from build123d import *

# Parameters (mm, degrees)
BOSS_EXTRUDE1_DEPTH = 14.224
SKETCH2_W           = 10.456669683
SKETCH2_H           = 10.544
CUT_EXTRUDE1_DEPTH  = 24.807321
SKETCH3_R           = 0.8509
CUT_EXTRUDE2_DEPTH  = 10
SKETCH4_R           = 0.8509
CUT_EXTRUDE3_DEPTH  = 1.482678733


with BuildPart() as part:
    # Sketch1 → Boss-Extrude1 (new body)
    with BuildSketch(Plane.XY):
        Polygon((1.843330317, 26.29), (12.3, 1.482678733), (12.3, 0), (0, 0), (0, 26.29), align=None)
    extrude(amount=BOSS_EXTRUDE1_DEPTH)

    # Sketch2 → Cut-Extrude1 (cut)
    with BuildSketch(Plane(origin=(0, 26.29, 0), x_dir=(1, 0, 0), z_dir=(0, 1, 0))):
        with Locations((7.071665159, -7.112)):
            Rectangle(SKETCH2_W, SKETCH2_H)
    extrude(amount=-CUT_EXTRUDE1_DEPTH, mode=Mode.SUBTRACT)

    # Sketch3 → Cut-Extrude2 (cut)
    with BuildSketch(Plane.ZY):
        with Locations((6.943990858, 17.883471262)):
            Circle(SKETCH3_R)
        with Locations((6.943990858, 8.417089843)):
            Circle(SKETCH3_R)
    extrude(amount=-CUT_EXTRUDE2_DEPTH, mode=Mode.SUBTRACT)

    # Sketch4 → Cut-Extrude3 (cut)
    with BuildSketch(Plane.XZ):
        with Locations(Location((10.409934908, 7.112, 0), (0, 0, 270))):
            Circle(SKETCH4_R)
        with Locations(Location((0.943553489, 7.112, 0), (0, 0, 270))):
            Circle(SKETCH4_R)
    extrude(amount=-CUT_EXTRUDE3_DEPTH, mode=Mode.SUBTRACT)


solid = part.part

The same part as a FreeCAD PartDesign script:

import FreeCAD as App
import Part
import Sketcher
Q = App.Units.Quantity

doc = App.newDocument("Part")
params = doc.addObject("Spreadsheet::Sheet", "Params")
for row, (alias, value) in enumerate([
    ("sketch1_width", "12.3 mm"),
    ("sketch1_height", "26.29 mm"),
    ("pad1_length", "14.224 mm"),
    ("pocket1_length", "24.807321 mm"),
    ("pocket2_length", "10 mm"),
    ("pocket3_length", "1.482679 mm"),
], start=1):
    params.set(f"A{row}", alias)
    params.set(f"B{row}", "=" + value)
    params.setAlias(f"B{row}", alias)

body = doc.addObject("PartDesign::Body", "Body")

sketch1 = doc.addObject("Sketcher::SketchObject", "Sketch")
body.addObject(sketch1)
sketch1.AttachmentSupport = (doc.XY_Plane, [""])
sketch1.MapMode = "FlatFace"
sketch1.addGeometry([
    Part.LineSegment(App.Vector(12.3, 1.5, 0), App.Vector(1.8, 26.3, 0)),
    Part.LineSegment(App.Vector(1.8, 26.3, 0), App.Vector(0, 26.3, 0)),
    Part.LineSegment(App.Vector(0, 26.3, 0), App.Vector(0, 0, 0)),
    Part.LineSegment(App.Vector(0, 0, 0), App.Vector(12.3, 0, 0)),
    Part.LineSegment(App.Vector(12.3, 0, 0), App.Vector(12.3, 1.5, 0)),
], False)
sketch1.addConstraint([
    Sketcher.Constraint("Coincident", 0, 2, 1, 1),
    Sketcher.Constraint("Coincident", 1, 2, 2, 1),
    Sketcher.Constraint("Coincident", 2, 2, 3, 1),
    Sketcher.Constraint("Coincident", 3, 2, 4, 1),
    Sketcher.Constraint("Coincident", 4, 2, 0, 1),
    Sketcher.Constraint("Horizontal", 1),
    Sketcher.Constraint("Vertical", 2),
    Sketcher.Constraint("Horizontal", 3),
    Sketcher.Constraint("Vertical", 4),
    Sketcher.Constraint("Coincident", 2, 2, -1, 1),
    Sketcher.Constraint("DistanceX", 3, 1, 3, 2, Q("12.3 mm")),
    Sketcher.Constraint("DistanceY", 2, 2, 2, 1, Q("26.29 mm")),
    Sketcher.Constraint("DistanceX", 1, 2, 1, 1, Q("1.84333 mm")),
    Sketcher.Constraint("DistanceY", 4, 1, 4, 2, Q("1.482679 mm")),
])
sketch1.setExpression("Constraints[10]", "Params.sketch1_width")
sketch1.setExpression("Constraints[11]", "Params.sketch1_height")
pad1 = doc.addObject("PartDesign::Pad", "Pad")
body.addObject(pad1)
pad1.Profile = sketch1
pad1.setExpression("Length", "Params.pad1_length")

sketch2 = doc.addObject("Sketcher::SketchObject", "Sketch001")
body.addObject(sketch2)
sketch2.AttachmentSupport = (doc.XZ_Plane, [""])
sketch2.MapMode = "FlatFace"
sketch2.AttachmentOffset = App.Placement(App.Vector(0, 0, -26.29), App.Rotation())
sketch2.addGeometry([
    Part.LineSegment(App.Vector(2, 2, 0), App.Vector(2, 12, 0)),
    Part.LineSegment(App.Vector(2, 12, 0), App.Vector(12, 12, 0)),
    Part.LineSegment(App.Vector(12, 12, 0), App.Vector(12, 2, 0)),
    Part.LineSegment(App.Vector(12, 2, 0), App.Vector(2, 2, 0)),
], False)
sketch2.addConstraint([
    Sketcher.Constraint("Coincident", 0, 2, 1, 1),
    Sketcher.Constraint("Coincident", 1, 2, 2, 1),
    Sketcher.Constraint("Coincident", 2, 2, 3, 1),
    Sketcher.Constraint("Coincident", 3, 2, 0, 1),
    Sketcher.Constraint("Vertical", 0),
    Sketcher.Constraint("Horizontal", 1),
    Sketcher.Constraint("Vertical", 2),
    Sketcher.Constraint("Horizontal", 3),
    Sketcher.Constraint("DistanceX", -1, 1, 1, 2, Q("12.3 mm")),
    Sketcher.Constraint("DistanceY", 0, 1, 0, 2, Q("10.544 mm")),
    Sketcher.Constraint("DistanceY", -1, 1, 2, 2, Q("1.84 mm")),
    Sketcher.Constraint("DistanceX", 1, 1, 1, 2, Q("10.45667 mm")),
])
pocket1 = doc.addObject("PartDesign::Pocket", "Pocket")
body.addObject(pocket1)
pocket1.Profile = sketch2
pocket1.setExpression("Length", "Params.pocket1_length")
pocket1.Reversed = True

sketch3 = doc.addObject("Sketcher::SketchObject", "Sketch002")
body.addObject(sketch3)
sketch3.AttachmentSupport = (doc.YZ_Plane, [""])
sketch3.MapMode = "FlatFace"
sketch3.addGeometry([
    Part.Circle(App.Vector(17.9, 6.9, 0), App.Vector(0, 0, 1), 0.9),
    Part.Circle(App.Vector(8.4, 6.9, 0), App.Vector(0, 0, 1), 0.9),
], False)
sketch3.addConstraint([
    Sketcher.Constraint("Equal", 0, 1),
    Sketcher.Constraint("Horizontal", 0, 3, 1, 3),
    Sketcher.Constraint("Diameter", 0, Q("1.7018 mm")),
    Sketcher.Constraint("DistanceX", -1, 1, 0, 3, Q("17.883471 mm")),
    Sketcher.Constraint("DistanceY", -1, 1, 0, 3, Q("6.943991 mm")),
    Sketcher.Constraint("DistanceX", -1, 1, 1, 3, Q("8.41709 mm")),
])
pocket2 = doc.addObject("PartDesign::Pocket", "Pocket001")
body.addObject(pocket2)
pocket2.Profile = sketch3
pocket2.setExpression("Length", "Params.pocket2_length")
pocket2.Reversed = True

sketch4 = doc.addObject("Sketcher::SketchObject", "Sketch003")
body.addObject(sketch4)
sketch4.AttachmentSupport = (doc.XZ_Plane, [""])
sketch4.MapMode = "FlatFace"
sketch4.addGeometry([
    Part.Circle(App.Vector(10.4, 7.1, 0), App.Vector(0, 0, 1), 0.9),
    Part.Circle(App.Vector(0.9, 7.1, 0), App.Vector(0, 0, 1), 0.9),
], False)
sketch4.addConstraint([
    Sketcher.Constraint("Equal", 0, 1),
    Sketcher.Constraint("Horizontal", 0, 3, 1, 3),
    Sketcher.Constraint("Diameter", 0, Q("1.7018 mm")),
    Sketcher.Constraint("DistanceY", -1, 1, 0, 3, Q("7.112 mm")),
    Sketcher.Constraint("DistanceX", 1, 3, 0, 3, Q("9.466381 mm")),
    Sketcher.Constraint("DistanceX", -1, 1, 0, 3, Q("10.409935 mm")),
])
pocket3 = doc.addObject("PartDesign::Pocket", "Pocket002")
body.addObject(pocket3)
pocket3.Profile = sketch4
pocket3.setExpression("Length", "Params.pocket3_length")

doc.recompute()
